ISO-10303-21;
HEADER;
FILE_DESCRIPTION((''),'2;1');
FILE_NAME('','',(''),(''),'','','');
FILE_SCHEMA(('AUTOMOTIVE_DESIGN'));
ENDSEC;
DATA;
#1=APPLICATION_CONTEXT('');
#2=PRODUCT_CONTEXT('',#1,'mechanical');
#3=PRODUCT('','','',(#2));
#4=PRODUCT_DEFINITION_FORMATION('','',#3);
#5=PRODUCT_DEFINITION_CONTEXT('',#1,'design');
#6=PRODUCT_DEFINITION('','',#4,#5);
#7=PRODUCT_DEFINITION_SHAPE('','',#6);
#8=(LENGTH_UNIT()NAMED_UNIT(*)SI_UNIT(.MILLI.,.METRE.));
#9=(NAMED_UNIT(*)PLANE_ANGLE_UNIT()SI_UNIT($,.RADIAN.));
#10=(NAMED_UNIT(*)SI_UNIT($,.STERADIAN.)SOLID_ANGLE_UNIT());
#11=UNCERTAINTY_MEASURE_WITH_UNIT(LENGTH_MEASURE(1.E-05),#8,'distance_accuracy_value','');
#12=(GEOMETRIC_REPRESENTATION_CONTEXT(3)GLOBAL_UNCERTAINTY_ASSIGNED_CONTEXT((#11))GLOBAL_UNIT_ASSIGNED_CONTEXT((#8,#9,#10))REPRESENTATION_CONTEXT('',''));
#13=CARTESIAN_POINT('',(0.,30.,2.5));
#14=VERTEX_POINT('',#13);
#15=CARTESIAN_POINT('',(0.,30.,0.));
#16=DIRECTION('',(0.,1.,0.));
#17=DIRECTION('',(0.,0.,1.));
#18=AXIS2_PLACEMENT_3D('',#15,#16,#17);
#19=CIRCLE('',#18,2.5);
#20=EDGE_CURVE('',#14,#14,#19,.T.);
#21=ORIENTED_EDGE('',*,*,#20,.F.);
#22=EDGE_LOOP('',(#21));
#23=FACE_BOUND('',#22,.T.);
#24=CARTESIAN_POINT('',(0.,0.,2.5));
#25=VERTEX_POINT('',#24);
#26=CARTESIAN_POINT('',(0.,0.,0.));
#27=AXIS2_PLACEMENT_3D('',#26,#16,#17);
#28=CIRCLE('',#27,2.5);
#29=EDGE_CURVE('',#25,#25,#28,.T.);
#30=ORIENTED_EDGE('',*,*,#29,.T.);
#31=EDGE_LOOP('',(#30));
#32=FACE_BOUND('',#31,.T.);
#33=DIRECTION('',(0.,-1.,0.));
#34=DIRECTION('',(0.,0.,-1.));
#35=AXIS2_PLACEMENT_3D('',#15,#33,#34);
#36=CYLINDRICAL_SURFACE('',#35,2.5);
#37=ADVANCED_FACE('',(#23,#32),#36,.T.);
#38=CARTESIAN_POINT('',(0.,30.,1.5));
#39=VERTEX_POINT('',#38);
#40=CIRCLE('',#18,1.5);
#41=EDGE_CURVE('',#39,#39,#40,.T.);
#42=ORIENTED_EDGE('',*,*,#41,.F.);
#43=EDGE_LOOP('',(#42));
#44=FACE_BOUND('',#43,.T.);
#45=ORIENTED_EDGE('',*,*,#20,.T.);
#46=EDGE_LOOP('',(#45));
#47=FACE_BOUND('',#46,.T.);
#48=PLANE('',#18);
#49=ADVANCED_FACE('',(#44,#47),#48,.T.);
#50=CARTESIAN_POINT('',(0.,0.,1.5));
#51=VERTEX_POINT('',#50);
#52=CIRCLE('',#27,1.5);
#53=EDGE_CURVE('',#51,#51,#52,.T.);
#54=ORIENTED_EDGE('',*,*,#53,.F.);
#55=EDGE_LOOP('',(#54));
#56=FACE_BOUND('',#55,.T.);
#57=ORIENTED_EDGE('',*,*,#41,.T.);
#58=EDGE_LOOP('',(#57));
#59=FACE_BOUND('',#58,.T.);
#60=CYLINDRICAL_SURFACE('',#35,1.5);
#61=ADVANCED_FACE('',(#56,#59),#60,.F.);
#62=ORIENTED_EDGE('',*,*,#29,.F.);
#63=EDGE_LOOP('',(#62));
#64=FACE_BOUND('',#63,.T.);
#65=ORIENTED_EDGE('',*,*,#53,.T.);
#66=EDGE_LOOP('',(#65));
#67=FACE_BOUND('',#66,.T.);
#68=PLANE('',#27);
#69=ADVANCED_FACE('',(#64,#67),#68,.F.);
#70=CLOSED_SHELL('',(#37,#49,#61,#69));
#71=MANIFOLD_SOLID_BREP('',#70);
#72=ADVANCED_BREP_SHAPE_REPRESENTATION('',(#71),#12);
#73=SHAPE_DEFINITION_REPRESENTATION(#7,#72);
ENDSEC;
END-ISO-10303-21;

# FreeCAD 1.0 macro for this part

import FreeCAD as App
import Part
import Sketcher
Q = App.Units.Quantity

doc = App.newDocument("Part")
params = doc.addObject("Spreadsheet::Sheet", "Params")
for row, (alias, value) in enumerate([
    ("sketch1_diameter", "5 mm"),
    ("sketch1_diameter2", "3 mm"),
    ("pad1_length", "30 mm"),
], start=1):
    params.set(f"A{row}", alias)
    params.set(f"B{row}", "=" + value)
    params.setAlias(f"B{row}", alias)

body = doc.addObject("PartDesign::Body", "Body")

# Sketch on XZ plane
sketch1 = doc.addObject("Sketcher::SketchObject", "Sketch")
body.addObject(sketch1)
sketch1.AttachmentSupport = (doc.XZ_Plane, [""])
sketch1.MapMode = "FlatFace"
sketch1.addGeometry([
    Part.Circle(App.Vector(0, 0, 0), App.Vector(0, 0, 1), 2.5),
    Part.Circle(App.Vector(0, 0, 0), App.Vector(0, 0, 1), 1.5),
], False)
sketch1.addConstraint([
    Sketcher.Constraint("Coincident", 0, 3, -1, 1),
    Sketcher.Constraint("Coincident", 1, 3, -1, 1),
    Sketcher.Constraint("Diameter", 0, Q("5 mm")),
    Sketcher.Constraint("Diameter", 1, Q("3 mm")),
])
sketch1.setExpression("Constraints[2]", "Params.sketch1_diameter")
sketch1.setExpression("Constraints[3]", "Params.sketch1_diameter2")
pad1 = doc.addObject("PartDesign::Pad", "Pad")
body.addObject(pad1)
pad1.Profile = sketch1
pad1.setExpression("Length", "Params.pad1_length")
pad1.Reversed = True

doc.recompute()
